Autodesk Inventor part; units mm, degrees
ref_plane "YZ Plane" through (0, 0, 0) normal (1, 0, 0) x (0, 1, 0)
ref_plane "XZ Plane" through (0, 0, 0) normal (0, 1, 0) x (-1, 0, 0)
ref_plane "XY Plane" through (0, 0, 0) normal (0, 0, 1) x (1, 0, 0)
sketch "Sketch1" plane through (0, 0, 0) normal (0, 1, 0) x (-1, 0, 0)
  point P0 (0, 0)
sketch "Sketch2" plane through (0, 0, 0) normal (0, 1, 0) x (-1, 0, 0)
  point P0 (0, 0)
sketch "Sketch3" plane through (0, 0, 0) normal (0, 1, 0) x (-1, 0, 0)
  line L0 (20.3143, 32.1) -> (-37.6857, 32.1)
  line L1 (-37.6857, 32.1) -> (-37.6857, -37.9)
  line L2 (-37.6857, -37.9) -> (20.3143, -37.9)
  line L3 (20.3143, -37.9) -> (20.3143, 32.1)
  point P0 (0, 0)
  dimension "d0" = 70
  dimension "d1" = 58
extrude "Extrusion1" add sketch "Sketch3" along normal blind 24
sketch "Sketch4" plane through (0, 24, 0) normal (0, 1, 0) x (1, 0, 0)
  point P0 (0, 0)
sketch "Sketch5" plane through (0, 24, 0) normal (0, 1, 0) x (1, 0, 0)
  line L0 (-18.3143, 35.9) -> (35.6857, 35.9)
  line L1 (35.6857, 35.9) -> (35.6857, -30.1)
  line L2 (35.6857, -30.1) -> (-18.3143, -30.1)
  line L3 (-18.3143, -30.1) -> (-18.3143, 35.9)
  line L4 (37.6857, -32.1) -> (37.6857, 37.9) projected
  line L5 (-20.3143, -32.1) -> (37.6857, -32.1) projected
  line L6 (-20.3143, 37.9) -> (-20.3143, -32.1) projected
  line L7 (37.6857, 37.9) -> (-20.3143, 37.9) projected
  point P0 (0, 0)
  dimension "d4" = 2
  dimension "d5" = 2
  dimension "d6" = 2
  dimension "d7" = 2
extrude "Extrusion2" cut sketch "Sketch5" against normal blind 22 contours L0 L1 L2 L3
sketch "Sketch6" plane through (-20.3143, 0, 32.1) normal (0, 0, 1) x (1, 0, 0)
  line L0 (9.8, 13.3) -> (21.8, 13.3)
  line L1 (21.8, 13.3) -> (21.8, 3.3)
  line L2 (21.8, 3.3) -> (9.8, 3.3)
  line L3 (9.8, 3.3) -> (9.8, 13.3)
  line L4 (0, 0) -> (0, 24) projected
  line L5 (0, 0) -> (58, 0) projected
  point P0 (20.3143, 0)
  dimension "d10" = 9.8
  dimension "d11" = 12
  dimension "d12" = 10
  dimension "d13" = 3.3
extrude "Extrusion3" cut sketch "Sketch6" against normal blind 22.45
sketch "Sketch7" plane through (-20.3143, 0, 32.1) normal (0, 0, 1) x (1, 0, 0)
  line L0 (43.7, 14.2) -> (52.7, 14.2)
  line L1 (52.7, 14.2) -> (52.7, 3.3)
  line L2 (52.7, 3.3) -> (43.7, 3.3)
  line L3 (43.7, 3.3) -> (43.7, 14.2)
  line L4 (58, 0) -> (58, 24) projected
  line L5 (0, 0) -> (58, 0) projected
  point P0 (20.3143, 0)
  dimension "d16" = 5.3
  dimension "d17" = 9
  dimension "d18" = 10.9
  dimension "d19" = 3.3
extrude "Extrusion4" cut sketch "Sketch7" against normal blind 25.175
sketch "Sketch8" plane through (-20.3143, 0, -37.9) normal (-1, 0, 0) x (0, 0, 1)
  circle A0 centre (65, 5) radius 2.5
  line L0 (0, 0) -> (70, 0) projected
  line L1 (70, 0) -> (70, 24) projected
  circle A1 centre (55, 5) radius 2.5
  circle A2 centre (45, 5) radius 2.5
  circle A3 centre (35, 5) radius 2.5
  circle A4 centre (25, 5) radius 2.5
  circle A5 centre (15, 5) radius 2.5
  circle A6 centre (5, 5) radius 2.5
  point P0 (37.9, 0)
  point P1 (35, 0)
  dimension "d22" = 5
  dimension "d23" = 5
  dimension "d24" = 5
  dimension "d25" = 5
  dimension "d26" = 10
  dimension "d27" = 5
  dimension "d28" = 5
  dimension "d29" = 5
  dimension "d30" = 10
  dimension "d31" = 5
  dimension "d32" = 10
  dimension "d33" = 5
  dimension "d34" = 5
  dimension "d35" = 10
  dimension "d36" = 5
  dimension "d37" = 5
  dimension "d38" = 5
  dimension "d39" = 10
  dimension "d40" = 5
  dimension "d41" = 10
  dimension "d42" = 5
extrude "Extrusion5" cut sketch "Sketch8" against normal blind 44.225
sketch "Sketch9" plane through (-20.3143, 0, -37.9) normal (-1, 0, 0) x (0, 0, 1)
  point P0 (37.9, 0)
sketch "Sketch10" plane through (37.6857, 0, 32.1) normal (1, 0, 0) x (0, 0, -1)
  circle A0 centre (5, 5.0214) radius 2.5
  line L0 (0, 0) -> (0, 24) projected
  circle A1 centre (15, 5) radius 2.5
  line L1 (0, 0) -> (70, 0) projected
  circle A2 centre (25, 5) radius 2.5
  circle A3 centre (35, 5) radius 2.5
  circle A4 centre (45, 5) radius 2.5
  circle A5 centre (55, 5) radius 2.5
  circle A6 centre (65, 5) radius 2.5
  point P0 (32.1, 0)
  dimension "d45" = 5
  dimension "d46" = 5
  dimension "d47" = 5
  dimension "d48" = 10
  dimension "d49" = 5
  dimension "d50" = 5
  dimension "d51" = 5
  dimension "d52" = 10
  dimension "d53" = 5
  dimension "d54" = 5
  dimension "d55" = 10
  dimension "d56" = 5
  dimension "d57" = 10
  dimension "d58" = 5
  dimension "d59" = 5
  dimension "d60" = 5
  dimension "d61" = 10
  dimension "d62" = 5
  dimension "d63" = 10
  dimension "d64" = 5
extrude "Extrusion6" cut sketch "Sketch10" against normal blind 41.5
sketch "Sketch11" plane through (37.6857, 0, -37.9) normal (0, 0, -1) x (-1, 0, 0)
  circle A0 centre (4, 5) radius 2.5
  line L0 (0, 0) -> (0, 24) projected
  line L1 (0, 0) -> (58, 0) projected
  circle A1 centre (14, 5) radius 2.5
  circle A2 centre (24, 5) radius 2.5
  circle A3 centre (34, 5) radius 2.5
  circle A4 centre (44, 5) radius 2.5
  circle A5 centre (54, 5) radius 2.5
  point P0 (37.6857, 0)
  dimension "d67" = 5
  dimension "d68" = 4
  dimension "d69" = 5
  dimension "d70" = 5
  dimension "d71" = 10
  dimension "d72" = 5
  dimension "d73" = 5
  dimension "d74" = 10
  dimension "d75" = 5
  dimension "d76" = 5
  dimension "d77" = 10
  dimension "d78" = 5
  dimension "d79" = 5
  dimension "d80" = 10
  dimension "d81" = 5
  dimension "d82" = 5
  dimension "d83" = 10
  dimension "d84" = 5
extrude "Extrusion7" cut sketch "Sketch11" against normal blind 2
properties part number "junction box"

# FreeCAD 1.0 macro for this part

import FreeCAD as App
import Part
import Sketcher
Q = App.Units.Quantity

doc = App.newDocument("Part")
body = doc.addObject("PartDesign::Body", "Body")

# Sketch on XZ plane
sketch1 = body.newObject("Sketcher::SketchObject", "Sketch")
sketch1.AttachmentSupport = (doc.getObject("XZ_Plane"), [""])
sketch1.MapMode = "FlatFace"
sketch1.addGeometry([
    Part.LineSegment(App.Vector(-20, -38, 0), App.Vector(-20, 32, 0)),
    Part.LineSegment(App.Vector(-20, 32, 0), App.Vector(38, 32, 0)),
    Part.LineSegment(App.Vector(38, 32, 0), App.Vector(38, -38, 0)),
    Part.LineSegment(App.Vector(38, -38, 0), App.Vector(-20, -38, 0)),
], False)
sketch1.addConstraint([
    Sketcher.Constraint("Coincident", 0, 2, 1, 1),
    Sketcher.Constraint("Coincident", 1, 2, 2, 1),
    Sketcher.Constraint("Coincident", 2, 2, 3, 1),
    Sketcher.Constraint("Coincident", 3, 2, 0, 1),
    Sketcher.Constraint("Vertical", 0),
    Sketcher.Constraint("Horizontal", 1),
    Sketcher.Constraint("Vertical", 2),
    Sketcher.Constraint("Horizontal", 3),
    Sketcher.Constraint("DistanceX", 1, 1, 1, 2, Q("58 mm")),
    Sketcher.Constraint("DistanceY", 0, 1, 0, 2, Q("70 mm")),
    Sketcher.Constraint("DistanceY", -1, 1, 0, 2, Q("32.1 mm")),
    Sketcher.Constraint("DistanceX", 0, 2, -1, 1, Q("20.3143 mm")),
])
pad1 = body.newObject("PartDesign::Pad", "Pad")
pad1.Profile = sketch1
pad1.Length = 24
pad1.Reversed = True

# Sketch on XZ plane
sketch2 = body.newObject("Sketcher::SketchObject", "Sketch001")
sketch2.AttachmentSupport = (doc.getObject("XZ_Plane"), [""])
sketch2.MapMode = "FlatFace"
sketch2.AttachmentOffset = App.Placement(App.Vector(0, 0, -24), App.Rotation())
sketch2.addGeometry([
    Part.LineSegment(App.Vector(36, -36, 0), App.Vector(-18, -36, 0)),
    Part.LineSegment(App.Vector(-18, -36, 0), App.Vector(-18, 30, 0)),
    Part.LineSegment(App.Vector(-18, 30, 0), App.Vector(36, 30, 0)),
    Part.LineSegment(App.Vector(36, 30, 0), App.Vector(36, -36, 0)),
], False)
sketch2.addConstraint([
    Sketcher.Constraint("Coincident", 0, 2, 1, 1),
    Sketcher.Constraint("Coincident", 1, 2, 2, 1),
    Sketcher.Constraint("Coincident", 2, 2, 3, 1),
    Sketcher.Constraint("Coincident", 3, 2, 0, 1),
    Sketcher.Constraint("Horizontal", 0),
    Sketcher.Constraint("Vertical", 1),
    Sketcher.Constraint("Horizontal", 2),
    Sketcher.Constraint("Vertical", 3),
    Sketcher.Constraint("DistanceX", 0, 2, 0, 1, Q("54 mm")),
    Sketcher.Constraint("DistanceY", 1, 1, 1, 2, Q("66 mm")),
    Sketcher.Constraint("DistanceY", 0, 2, -1, 1, Q("35.9 mm")),
    Sketcher.Constraint("DistanceX", 0, 2, -1, 1, Q("18.3143 mm")),
])
pocket1 = body.newObject("PartDesign::Pocket", "Pocket")
pocket1.Profile = sketch2
pocket1.Length = 22
pocket1.Reversed = True

# Sketch on XY plane
sketch3 = body.newObject("Sketcher::SketchObject", "Sketch002")
sketch3.AttachmentSupport = (doc.getObject("XY_Plane"), [""])
sketch3.MapMode = "FlatFace"
sketch3.AttachmentOffset = App.Placement(App.Vector(0, 0, 32.1), App.Rotation())
sketch3.addGeometry([
    Part.LineSegment(App.Vector(1, 13, 0), App.Vector(-11, 13, 0)),
    Part.LineSegment(App.Vector(-11, 13, 0), App.Vector(-11, 3, 0)),
    Part.LineSegment(App.Vector(-11, 3, 0), App.Vector(1, 3, 0)),
    Part.LineSegment(App.Vector(1, 3, 0), App.Vector(1, 13, 0)),
], False)
sketch3.addConstraint([
    Sketcher.Constraint("Coincident", 0, 2, 1, 1),
    Sketcher.Constraint("Coincident", 1, 2, 2, 1),
    Sketcher.Constraint("Coincident", 2, 2, 3, 1),
    Sketcher.Constraint("Coincident", 3, 2, 0, 1),
    Sketcher.Constraint("Horizontal", 0),
    Sketcher.Constraint("Vertical", 1),
    Sketcher.Constraint("Horizontal", 2),
    Sketcher.Constraint("Vertical", 3),
    Sketcher.Constraint("DistanceX", 0, 2, 0, 1, Q("12 mm")),
    Sketcher.Constraint("DistanceY", 1, 2, 1, 1, Q("10 mm")),
    Sketcher.Constraint("DistanceY", -1, 1, 1, 2, Q("3.3 mm")),
    Sketcher.Constraint("DistanceX", 0, 2, -1, 1, Q("10.5143 mm")),
])
pocket2 = body.newObject("PartDesign::Pocket", "Pocket001")
pocket2.Profile = sketch3
pocket2.Length = 22.45

# Sketch on XY plane
sketch4 = body.newObject("Sketcher::SketchObject", "Sketch003")
sketch4.AttachmentSupport = (doc.getObject("XY_Plane"), [""])
sketch4.MapMode = "FlatFace"
sketch4.AttachmentOffset = App.Placement(App.Vector(0, 0, 32.1), App.Rotation())
sketch4.addGeometry([
    Part.LineSegment(App.Vector(32, 14, 0), App.Vector(23, 14, 0)),
    Part.LineSegment(App.Vector(23, 14, 0), App.Vector(23, 3, 0)),
    Part.LineSegment(App.Vector(23, 3, 0), App.Vector(32, 3, 0)),
    Part.LineSegment(App.Vector(32, 3, 0), App.Vector(32, 14, 0)),
], False)
sketch4.addConstraint([
    Sketcher.Constraint("Coincident", 0, 2, 1, 1),
    Sketcher.Constraint("Coincident", 1, 2, 2, 1),
    Sketcher.Constraint("Coincident", 2, 2, 3, 1),
    Sketcher.Constraint("Coincident", 3, 2, 0, 1),
    Sketcher.Constraint("Horizontal", 0),
    Sketcher.Constraint("Vertical", 1),
    Sketcher.Constraint("Horizontal", 2),
    Sketcher.Constraint("Vertical", 3),
    Sketcher.Constraint("DistanceX", 0, 2, 0, 1, Q("9 mm")),
    Sketcher.Constraint("DistanceY", 1, 2, 1, 1, Q("10.9 mm")),
    Sketcher.Constraint("DistanceY", -1, 1, 1, 2, Q("3.3 mm")),
    Sketcher.Constraint("DistanceX", -1, 1, 0, 2, Q("23.3857 mm")),
])
pocket3 = body.newObject("PartDesign::Pocket", "Pocket002")
pocket3.Profile = sketch4
pocket3.Length = 25.175

# Sketch on YZ plane
sketch5 = body.newObject("Sketcher::SketchObject", "Sketch004")
sketch5.AttachmentSupport = (doc.getObject("YZ_Plane"), [""])
sketch5.MapMode = "FlatFace"
sketch5.AttachmentOffset = App.Placement(App.Vector(0, 0, -20.3143), App.Rotation())
sketch5.addGeometry([
    Part.Circle(App.Vector(5, 27.1, 0), App.Vector(0, 0, 1), 2.5),  # 0
    Part.Circle(App.Vector(5, 17.1, 0), App.Vector(0, 0, 1), 2.5),  # 1
    Part.Circle(App.Vector(5, 7.1, 0), App.Vector(0, 0, 1), 2.5),  # 2
    Part.Circle(App.Vector(5, -2.9, 0), App.Vector(0, 0, 1), 2.5),  # 3
    Part.Circle(App.Vector(5, -12.9, 0), App.Vector(0, 0, 1), 2.5),  # 4
    Part.Circle(App.Vector(5, -22.9, 0), App.Vector(0, 0, 1), 2.5),  # 5
    Part.Circle(App.Vector(5, -32.9, 0), App.Vector(0, 0, 1), 2.5),  # 6
], False)
sketch5.addConstraint([
    Sketcher.Constraint("Equal", 0, 1),
    Sketcher.Constraint("Equal", 1, 2),
    Sketcher.Constraint("Equal", 2, 3),
    Sketcher.Constraint("Equal", 3, 4),
    Sketcher.Constraint("Equal", 4, 5),
    Sketcher.Constraint("Equal", 5, 6),
    Sketcher.Constraint("Vertical", 0, 3, 1, 3),
    Sketcher.Constraint("Vertical", 1, 3, 2, 3),
    Sketcher.Constraint("Vertical", 2, 3, 3, 3),
    Sketcher.Constraint("Vertical", 3, 3, 4, 3),
    Sketcher.Constraint("Vertical", 4, 3, 5, 3),
    Sketcher.Constraint("Vertical", 5, 3, 6, 3),
    Sketcher.Constraint("Diameter", 0, Q("5 mm")),
    Sketcher.Constraint("DistanceX", -1, 1, 0, 3, Q("5 mm")),
    Sketcher.Constraint("DistanceY", 1, 3, 0, 3, Q("10 mm")),
    Sketcher.Constraint("DistanceY", 2, 3, 1, 3, Q("10 mm")),
    Sketcher.Constraint("DistanceY", 3, 3, 2, 3, Q("10 mm")),
    Sketcher.Constraint("DistanceY", 4, 3, 3, 3, Q("10 mm")),
    Sketcher.Constraint("DistanceY", 5, 3, 4, 3, Q("10 mm")),
    Sketcher.Constraint("DistanceY", 6, 3, 5, 3, Q("10 mm")),
    Sketcher.Constraint("DistanceY", -1, 1, 0, 3, Q("27.1 mm")),
])
pocket4 = body.newObject("PartDesign::Pocket", "Pocket003")
pocket4.Profile = sketch5
pocket4.Length = 44.225
pocket4.Reversed = True

# Sketch on YZ plane
sketch6 = body.newObject("Sketcher::SketchObject", "Sketch005")
sketch6.AttachmentSupport = (doc.getObject("YZ_Plane"), [""])
sketch6.MapMode = "FlatFace"
sketch6.AttachmentOffset = App.Placement(App.Vector(0, 0, 37.6857), App.Rotation())
sketch6.addGeometry([
    Part.Circle(App.Vector(5, 27.1, 0), App.Vector(0, 0, 1), 2.5),  # 0
    Part.Circle(App.Vector(5, 17.1, 0), App.Vector(0, 0, 1), 2.5),  # 1
    Part.Circle(App.Vector(5, 7.1, 0), App.Vector(0, 0, 1), 2.5),  # 2
    Part.Circle(App.Vector(5, -2.9, 0), App.Vector(0, 0, 1), 2.5),  # 3
    Part.Circle(App.Vector(5, -12.9, 0), App.Vector(0, 0, 1), 2.5),  # 4
    Part.Circle(App.Vector(5, -22.9, 0), App.Vector(0, 0, 1), 2.5),  # 5
    Part.Circle(App.Vector(5, -32.9, 0), App.Vector(0, 0, 1), 2.5),  # 6
], False)
sketch6.addConstraint([
    Sketcher.Constraint("Equal", 0, 1),
    Sketcher.Constraint("Equal", 1, 2),
    Sketcher.Constraint("Equal", 2, 3),
    Sketcher.Constraint("Equal", 3, 4),
    Sketcher.Constraint("Equal", 4, 5),
    Sketcher.Constraint("Equal", 5, 6),
    Sketcher.Constraint("Vertical", 1, 3, 2, 3),
    Sketcher.Constraint("Vertical", 2, 3, 3, 3),
    Sketcher.Constraint("Vertical", 3, 3, 4, 3),
    Sketcher.Constraint("Vertical", 4, 3, 5, 3),
    Sketcher.Constraint("Vertical", 5, 3, 6, 3),
    Sketcher.Constraint("Diameter", 0, Q("5 mm")),
    Sketcher.Constraint("DistanceX", -1, 1, 1, 3, Q("5 mm")),
    Sketcher.Constraint("DistanceY", 1, 3, 0, 3, Q("10 mm")),
    Sketcher.Constraint("DistanceY", 2, 3, 1, 3, Q("10 mm")),
    Sketcher.Constraint("DistanceY", 3, 3, 2, 3, Q("10 mm")),
    Sketcher.Constraint("DistanceY", 4, 3, 3, 3, Q("10 mm")),
    Sketcher.Constraint("DistanceY", 5, 3, 4, 3, Q("10 mm")),
    Sketcher.Constraint("DistanceY", 6, 3, 5, 3, Q("10 mm")),
    Sketcher.Constraint("DistanceY", -1, 1, 0, 3, Q("27.1 mm")),
    Sketcher.Constraint("DistanceX", -1, 1, 0, 3, Q("5.0214 mm")),
])
pocket5 = body.newObject("PartDesign::Pocket", "Pocket004")
pocket5.Profile = sketch6
pocket5.Length = 41.5

# Sketch on XY plane
sketch7 = body.newObject("Sketcher::SketchObject", "Sketch006")
sketch7.AttachmentSupport = (doc.getObject("XY_Plane"), [""])
sketch7.MapMode = "FlatFace"
sketch7.AttachmentOffset = App.Placement(App.Vector(0, 0, -37.9), App.Rotation())
sketch7.addGeometry([
    Part.Circle(App.Vector(33.7, 5, 0), App.Vector(0, 0, 1), 2.5),  # 0
    Part.Circle(App.Vector(23.7, 5, 0), App.Vector(0, 0, 1), 2.5),  # 1
    Part.Circle(App.Vector(13.7, 5, 0), App.Vector(0, 0, 1), 2.5),  # 2
    Part.Circle(App.Vector(3.7, 5, 0), App.Vector(0, 0, 1), 2.5),  # 3
    Part.Circle(App.Vector(-6.3, 5, 0), App.Vector(0, 0, 1), 2.5),  # 4
    Part.Circle(App.Vector(-16.3, 5, 0), App.Vector(0, 0, 1), 2.5),  # 5
], False)
sketch7.addConstraint([
    Sketcher.Constraint("Equal", 0, 1),
    Sketcher.Constraint("Equal", 1, 2),
    Sketcher.Constraint("Equal", 2, 3),
    Sketcher.Constraint("Equal", 3, 4),
    Sketcher.Constraint("Equal", 4, 5),
    Sketcher.Constraint("Horizontal", 0, 3, 1, 3),
    Sketcher.Constraint("Horizontal", 1, 3, 2, 3),
    Sketcher.Constraint("Horizontal", 2, 3, 3, 3),
    Sketcher.Constraint("Horizontal", 3, 3, 4, 3),
    Sketcher.Constraint("Horizontal", 4, 3, 5, 3),
    Sketcher.Constraint("Diameter", 0, Q("5 mm")),
    Sketcher.Constraint("DistanceY", -1, 1, 0, 3, Q("5 mm")),
    Sketcher.Constraint("DistanceX", 1, 3, 0, 3, Q("10 mm")),
    Sketcher.Constraint("DistanceX", 2, 3, 1, 3, Q("10 mm")),
    Sketcher.Constraint("DistanceX", 3, 3, 2, 3, Q("10 mm")),
    Sketcher.Constraint("DistanceX", 4, 3, 3, 3, Q("10 mm")),
    Sketcher.Constraint("DistanceX", 5, 3, 4, 3, Q("10 mm")),
    Sketcher.Constraint("DistanceX", -1, 1, 0, 3, Q("33.6857 mm")),
])
pocket6 = body.newObject("PartDesign::Pocket", "Pocket005")
pocket6.Profile = sketch7
pocket6.Length = 2
pocket6.Reversed = True

doc.recompute()
